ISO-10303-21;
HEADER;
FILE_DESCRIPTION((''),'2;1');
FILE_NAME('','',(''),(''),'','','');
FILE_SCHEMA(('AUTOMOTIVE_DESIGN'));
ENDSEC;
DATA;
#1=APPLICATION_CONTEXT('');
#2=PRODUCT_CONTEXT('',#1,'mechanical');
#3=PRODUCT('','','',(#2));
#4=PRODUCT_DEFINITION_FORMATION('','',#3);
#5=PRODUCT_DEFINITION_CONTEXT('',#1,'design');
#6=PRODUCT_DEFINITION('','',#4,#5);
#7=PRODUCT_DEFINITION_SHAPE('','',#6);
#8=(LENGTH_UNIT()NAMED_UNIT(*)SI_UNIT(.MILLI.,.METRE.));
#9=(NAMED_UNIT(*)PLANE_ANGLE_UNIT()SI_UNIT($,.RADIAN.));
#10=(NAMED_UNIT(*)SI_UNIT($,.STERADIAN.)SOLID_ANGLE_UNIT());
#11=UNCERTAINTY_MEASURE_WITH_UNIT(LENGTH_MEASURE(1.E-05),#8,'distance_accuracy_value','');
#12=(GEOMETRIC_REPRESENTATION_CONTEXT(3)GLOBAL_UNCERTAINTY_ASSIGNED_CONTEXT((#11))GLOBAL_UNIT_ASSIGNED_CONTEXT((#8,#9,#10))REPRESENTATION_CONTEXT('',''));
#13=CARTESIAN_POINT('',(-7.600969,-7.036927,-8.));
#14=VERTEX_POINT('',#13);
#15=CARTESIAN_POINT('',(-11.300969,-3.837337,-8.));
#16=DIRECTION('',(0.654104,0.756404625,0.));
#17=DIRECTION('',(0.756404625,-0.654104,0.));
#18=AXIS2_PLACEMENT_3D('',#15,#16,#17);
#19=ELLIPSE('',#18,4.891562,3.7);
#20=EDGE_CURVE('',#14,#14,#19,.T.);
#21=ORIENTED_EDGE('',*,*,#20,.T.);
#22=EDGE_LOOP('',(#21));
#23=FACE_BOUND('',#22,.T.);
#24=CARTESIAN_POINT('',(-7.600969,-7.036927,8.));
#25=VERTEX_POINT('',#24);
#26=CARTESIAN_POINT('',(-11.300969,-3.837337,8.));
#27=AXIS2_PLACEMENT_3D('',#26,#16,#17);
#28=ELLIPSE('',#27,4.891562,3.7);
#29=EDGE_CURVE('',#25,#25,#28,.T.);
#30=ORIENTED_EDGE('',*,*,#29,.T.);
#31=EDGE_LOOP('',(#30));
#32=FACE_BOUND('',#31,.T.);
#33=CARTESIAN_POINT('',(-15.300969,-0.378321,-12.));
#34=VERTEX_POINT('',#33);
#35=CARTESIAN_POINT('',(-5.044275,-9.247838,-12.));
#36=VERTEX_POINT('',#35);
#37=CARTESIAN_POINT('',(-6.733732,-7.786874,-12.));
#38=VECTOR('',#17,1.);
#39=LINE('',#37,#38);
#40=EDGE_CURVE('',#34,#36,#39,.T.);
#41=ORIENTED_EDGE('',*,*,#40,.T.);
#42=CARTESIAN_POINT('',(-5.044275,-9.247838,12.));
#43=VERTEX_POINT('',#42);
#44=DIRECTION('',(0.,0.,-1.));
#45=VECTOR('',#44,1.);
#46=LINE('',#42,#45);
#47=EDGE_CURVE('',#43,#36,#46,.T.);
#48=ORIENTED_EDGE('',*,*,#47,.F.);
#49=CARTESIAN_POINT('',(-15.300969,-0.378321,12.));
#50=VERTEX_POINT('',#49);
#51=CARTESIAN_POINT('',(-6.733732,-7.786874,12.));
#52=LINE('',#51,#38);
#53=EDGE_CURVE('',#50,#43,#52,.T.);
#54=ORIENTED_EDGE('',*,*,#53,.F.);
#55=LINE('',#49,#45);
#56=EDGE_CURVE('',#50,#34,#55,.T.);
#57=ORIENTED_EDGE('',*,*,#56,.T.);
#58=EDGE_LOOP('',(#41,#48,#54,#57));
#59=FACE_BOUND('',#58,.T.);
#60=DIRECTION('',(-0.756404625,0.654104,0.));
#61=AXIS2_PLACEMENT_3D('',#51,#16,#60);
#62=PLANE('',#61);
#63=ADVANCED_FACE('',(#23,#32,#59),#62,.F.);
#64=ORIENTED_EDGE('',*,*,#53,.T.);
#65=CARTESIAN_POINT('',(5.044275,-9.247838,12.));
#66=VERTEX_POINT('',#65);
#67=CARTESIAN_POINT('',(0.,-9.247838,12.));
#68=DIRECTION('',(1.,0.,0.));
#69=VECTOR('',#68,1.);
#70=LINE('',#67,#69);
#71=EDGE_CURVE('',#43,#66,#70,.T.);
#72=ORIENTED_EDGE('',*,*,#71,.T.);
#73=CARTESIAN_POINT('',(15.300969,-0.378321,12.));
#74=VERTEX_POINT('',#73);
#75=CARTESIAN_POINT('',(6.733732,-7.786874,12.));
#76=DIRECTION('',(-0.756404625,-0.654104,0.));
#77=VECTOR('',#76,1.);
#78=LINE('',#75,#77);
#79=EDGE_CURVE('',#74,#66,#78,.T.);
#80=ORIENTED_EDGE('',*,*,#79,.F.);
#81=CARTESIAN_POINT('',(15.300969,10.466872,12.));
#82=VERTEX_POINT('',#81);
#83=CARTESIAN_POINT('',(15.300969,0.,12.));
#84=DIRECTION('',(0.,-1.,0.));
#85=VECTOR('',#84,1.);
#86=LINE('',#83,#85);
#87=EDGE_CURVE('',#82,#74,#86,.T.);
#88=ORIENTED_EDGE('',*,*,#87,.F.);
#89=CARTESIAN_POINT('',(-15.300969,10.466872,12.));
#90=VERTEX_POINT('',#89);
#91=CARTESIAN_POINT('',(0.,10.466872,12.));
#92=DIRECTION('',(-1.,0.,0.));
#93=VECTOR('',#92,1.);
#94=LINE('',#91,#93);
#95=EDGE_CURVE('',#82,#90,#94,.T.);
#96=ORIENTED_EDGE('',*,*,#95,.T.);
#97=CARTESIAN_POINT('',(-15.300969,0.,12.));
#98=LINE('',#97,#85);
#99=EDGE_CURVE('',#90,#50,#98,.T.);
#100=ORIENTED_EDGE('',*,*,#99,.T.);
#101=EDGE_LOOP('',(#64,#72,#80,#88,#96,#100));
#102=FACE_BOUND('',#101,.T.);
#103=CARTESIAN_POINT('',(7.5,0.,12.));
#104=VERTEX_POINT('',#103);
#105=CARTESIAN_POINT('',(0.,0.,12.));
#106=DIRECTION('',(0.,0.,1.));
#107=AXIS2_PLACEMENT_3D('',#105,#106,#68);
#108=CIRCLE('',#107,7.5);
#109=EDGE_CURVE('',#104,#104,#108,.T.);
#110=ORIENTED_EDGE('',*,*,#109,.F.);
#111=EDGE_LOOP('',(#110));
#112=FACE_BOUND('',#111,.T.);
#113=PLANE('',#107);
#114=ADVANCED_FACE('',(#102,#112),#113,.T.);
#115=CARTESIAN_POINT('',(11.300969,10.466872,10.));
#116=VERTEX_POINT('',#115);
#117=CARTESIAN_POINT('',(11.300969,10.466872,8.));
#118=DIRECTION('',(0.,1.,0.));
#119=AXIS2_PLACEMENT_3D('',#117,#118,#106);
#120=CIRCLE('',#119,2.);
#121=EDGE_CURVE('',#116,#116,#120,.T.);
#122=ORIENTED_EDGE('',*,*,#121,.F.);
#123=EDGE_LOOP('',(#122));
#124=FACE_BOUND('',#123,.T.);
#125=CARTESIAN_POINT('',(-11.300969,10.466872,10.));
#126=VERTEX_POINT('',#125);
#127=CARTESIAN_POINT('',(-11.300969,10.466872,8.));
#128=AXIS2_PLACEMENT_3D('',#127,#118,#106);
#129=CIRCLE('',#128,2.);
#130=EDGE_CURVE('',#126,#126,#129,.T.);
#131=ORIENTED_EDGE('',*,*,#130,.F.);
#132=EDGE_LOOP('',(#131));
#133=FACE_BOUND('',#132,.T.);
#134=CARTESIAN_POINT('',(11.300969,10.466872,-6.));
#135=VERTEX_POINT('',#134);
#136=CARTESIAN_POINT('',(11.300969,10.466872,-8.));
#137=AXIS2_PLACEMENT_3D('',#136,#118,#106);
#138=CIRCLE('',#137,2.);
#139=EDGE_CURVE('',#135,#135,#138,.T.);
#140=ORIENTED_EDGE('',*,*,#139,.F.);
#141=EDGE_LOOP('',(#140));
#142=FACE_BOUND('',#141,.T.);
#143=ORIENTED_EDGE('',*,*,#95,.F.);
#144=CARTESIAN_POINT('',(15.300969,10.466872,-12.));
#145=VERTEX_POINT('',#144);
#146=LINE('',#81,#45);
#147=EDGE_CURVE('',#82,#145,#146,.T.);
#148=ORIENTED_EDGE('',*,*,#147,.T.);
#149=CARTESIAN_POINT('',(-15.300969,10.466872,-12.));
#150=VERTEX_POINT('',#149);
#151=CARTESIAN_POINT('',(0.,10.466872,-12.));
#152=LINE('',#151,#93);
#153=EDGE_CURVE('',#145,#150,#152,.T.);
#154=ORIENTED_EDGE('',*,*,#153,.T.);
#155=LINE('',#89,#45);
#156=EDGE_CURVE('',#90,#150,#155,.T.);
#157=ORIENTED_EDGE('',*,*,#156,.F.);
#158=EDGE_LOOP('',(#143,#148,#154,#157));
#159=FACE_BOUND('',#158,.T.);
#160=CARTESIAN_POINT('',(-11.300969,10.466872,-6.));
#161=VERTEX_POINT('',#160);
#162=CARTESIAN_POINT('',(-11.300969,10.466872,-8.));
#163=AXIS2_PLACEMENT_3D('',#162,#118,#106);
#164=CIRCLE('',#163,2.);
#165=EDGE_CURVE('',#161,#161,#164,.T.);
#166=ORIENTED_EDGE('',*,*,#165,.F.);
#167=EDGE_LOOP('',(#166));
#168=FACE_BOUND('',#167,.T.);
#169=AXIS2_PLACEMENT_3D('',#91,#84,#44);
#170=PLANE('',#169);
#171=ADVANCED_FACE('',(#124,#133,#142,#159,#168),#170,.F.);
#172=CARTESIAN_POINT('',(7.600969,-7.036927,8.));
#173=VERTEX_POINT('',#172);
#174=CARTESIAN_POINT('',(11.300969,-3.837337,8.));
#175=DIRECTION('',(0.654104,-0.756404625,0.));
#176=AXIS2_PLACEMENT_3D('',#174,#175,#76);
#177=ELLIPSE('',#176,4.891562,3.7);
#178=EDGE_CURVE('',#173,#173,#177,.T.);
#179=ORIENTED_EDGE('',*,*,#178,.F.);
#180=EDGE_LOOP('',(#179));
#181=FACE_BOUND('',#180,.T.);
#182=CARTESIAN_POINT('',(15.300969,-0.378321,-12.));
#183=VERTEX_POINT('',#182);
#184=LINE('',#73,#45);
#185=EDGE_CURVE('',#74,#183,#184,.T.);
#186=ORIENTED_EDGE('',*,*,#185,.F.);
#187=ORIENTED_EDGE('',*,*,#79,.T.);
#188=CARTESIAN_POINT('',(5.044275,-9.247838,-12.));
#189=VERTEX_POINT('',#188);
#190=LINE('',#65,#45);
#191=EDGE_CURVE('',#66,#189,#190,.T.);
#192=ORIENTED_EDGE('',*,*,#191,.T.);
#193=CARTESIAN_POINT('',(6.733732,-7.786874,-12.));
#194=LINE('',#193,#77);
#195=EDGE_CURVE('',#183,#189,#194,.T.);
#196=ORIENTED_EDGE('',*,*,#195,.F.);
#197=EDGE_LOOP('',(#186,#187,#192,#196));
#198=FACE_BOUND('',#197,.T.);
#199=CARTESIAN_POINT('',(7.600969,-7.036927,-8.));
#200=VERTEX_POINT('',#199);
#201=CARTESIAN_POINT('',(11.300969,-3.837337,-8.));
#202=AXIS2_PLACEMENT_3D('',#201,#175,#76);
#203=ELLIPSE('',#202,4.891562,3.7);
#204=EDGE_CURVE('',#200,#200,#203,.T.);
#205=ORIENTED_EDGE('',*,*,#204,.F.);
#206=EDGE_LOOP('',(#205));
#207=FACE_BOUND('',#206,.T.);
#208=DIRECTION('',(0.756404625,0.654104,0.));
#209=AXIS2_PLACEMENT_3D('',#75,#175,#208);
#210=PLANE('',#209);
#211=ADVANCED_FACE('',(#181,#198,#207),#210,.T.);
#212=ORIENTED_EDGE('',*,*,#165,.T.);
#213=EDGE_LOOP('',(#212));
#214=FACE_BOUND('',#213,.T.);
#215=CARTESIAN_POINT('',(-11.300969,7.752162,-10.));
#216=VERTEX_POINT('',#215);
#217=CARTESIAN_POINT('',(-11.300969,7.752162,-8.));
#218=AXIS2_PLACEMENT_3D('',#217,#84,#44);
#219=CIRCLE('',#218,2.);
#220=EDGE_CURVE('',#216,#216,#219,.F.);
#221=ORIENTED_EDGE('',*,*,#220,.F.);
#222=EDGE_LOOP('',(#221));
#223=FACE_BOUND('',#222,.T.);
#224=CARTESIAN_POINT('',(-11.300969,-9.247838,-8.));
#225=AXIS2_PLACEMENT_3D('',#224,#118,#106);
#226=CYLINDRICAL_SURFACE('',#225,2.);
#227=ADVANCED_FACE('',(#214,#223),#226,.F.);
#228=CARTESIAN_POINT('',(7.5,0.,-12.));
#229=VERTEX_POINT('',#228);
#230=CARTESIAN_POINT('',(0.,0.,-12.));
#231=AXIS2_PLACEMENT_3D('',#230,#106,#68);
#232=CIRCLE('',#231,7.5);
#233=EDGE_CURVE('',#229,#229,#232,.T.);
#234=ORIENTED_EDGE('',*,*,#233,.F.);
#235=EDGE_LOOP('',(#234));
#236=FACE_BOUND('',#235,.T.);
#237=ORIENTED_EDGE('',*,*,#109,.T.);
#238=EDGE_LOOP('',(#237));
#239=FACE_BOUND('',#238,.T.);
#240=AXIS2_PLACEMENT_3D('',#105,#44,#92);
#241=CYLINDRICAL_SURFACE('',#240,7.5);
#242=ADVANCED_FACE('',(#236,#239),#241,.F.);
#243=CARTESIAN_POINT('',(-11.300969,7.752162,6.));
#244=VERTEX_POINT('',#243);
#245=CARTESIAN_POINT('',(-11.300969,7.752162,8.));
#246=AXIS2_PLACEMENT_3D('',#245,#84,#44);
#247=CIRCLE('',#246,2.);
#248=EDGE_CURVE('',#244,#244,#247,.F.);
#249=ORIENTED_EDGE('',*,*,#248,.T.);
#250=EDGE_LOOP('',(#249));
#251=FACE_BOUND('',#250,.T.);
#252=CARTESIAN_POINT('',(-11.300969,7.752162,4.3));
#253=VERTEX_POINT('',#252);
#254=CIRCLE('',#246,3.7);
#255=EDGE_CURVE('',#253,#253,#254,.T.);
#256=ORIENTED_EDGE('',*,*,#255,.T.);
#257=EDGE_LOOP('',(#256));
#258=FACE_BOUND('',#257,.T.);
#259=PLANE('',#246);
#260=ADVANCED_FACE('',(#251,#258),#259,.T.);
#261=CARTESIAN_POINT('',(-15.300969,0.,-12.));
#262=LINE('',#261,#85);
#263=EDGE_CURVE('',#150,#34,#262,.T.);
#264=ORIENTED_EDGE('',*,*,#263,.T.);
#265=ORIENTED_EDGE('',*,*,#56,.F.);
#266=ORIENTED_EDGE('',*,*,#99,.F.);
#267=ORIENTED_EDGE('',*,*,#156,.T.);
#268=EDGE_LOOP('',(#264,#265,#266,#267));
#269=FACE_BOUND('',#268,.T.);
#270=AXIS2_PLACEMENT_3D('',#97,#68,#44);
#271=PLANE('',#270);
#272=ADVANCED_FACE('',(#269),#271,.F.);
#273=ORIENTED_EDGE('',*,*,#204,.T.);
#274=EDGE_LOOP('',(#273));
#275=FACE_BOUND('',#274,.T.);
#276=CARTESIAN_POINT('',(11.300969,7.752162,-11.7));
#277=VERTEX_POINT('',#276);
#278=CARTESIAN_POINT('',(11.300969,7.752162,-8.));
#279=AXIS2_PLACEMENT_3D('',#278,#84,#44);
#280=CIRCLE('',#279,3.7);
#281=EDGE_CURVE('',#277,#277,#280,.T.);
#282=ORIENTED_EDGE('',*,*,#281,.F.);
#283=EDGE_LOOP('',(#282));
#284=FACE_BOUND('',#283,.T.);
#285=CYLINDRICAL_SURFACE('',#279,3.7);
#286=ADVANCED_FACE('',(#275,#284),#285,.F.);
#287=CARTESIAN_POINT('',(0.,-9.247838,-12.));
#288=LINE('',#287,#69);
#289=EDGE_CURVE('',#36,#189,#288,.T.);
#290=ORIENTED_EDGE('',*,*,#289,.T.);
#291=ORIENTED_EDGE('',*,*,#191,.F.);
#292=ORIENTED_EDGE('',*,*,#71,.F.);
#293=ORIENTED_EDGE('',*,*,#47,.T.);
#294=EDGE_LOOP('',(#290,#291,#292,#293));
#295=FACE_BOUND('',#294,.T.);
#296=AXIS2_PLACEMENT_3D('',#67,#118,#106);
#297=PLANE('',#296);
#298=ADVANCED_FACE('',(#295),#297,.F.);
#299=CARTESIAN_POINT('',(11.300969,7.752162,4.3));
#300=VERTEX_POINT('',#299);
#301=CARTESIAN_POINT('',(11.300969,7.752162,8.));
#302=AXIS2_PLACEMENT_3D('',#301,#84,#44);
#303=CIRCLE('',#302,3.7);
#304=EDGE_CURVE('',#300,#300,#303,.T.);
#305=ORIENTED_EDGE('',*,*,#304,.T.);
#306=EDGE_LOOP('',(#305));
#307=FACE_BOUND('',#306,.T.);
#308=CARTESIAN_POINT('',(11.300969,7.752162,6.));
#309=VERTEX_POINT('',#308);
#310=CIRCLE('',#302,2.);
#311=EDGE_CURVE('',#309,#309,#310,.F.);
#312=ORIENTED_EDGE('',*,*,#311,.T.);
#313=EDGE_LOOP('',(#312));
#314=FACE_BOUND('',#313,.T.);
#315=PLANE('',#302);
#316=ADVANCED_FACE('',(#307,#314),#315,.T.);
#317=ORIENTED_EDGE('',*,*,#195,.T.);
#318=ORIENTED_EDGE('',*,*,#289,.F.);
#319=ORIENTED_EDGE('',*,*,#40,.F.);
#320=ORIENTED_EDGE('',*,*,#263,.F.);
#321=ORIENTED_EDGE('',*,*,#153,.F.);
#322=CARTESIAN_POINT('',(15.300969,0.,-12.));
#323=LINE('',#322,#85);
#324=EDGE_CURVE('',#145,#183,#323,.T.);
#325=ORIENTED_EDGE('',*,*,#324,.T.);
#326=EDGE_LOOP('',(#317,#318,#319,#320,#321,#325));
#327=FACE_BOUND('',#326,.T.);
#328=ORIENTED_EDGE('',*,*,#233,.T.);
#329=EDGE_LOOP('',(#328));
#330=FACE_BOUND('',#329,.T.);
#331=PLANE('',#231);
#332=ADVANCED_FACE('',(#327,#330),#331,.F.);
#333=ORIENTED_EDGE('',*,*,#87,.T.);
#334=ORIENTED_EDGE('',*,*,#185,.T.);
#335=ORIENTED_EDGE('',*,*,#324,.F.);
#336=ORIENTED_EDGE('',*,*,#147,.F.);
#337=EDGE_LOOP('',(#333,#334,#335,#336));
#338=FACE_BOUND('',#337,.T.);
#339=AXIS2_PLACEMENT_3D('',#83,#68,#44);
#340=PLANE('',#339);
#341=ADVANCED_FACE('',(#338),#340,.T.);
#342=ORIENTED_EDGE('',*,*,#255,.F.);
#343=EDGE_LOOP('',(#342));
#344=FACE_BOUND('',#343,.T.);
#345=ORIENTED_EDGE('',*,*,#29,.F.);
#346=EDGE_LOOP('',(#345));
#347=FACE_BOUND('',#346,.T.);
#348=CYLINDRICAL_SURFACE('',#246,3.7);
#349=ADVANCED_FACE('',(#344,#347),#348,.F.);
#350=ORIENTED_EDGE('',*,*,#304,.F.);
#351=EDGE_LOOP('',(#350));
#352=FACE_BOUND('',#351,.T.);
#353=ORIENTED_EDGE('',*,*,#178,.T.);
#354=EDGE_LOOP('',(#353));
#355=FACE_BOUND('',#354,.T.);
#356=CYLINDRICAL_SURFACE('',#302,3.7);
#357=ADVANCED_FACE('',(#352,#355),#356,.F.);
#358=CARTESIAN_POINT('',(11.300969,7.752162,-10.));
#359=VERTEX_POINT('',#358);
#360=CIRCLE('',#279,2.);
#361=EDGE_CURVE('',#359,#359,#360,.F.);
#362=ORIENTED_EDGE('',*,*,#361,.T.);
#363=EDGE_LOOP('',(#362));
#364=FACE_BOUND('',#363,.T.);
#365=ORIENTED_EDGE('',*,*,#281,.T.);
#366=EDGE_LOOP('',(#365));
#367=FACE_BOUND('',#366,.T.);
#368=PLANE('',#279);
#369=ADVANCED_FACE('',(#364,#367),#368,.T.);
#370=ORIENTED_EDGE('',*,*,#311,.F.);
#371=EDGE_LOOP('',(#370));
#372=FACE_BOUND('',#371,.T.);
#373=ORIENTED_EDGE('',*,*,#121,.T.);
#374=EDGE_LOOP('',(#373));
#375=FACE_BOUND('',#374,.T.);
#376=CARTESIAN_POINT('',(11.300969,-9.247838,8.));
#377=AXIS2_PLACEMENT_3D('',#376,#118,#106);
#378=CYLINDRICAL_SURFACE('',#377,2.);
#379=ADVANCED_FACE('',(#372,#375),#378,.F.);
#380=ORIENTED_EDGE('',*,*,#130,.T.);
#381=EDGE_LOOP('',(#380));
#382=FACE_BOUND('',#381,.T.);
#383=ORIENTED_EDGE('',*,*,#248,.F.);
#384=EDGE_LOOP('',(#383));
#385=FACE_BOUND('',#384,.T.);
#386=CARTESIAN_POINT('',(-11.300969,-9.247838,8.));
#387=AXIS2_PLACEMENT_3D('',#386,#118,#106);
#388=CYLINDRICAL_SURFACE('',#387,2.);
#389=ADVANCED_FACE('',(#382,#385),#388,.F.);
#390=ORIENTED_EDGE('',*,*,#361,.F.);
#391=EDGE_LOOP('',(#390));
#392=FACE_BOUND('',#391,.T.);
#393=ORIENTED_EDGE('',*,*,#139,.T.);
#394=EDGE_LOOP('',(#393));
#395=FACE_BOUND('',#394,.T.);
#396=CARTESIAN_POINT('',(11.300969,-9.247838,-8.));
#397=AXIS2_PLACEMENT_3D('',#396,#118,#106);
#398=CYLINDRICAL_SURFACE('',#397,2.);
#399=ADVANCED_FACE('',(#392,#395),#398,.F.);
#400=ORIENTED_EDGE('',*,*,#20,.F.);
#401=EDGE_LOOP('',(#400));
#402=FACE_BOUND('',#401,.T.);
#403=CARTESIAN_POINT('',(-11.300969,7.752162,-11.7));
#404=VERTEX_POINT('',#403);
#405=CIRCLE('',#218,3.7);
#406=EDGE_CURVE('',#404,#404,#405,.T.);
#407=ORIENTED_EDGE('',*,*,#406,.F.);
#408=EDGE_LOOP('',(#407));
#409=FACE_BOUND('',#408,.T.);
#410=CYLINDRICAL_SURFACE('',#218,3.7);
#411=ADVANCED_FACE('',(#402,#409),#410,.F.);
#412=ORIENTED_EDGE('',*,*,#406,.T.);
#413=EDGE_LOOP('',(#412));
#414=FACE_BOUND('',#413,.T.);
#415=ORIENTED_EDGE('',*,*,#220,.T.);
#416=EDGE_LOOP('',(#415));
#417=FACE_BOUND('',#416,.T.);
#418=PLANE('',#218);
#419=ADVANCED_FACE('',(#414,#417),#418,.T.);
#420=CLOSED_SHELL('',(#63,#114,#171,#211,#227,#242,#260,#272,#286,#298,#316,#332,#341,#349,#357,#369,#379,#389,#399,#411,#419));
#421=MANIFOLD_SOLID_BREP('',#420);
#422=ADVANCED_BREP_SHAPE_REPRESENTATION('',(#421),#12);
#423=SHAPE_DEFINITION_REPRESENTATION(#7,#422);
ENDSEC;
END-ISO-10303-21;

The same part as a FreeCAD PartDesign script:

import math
import FreeCAD as App
import Part
import Sketcher


def add_polygon(sketch, points):
    """Adds a closed chain of lines whose ends are joined by coincident constraints."""
    first, n = sketch.GeometryCount, len(points)
    for a, b in zip(points, points[1:] + points[:1]):
        sketch.addGeometry(Part.LineSegment(App.Vector(*a, 0), App.Vector(*b, 0)), False)
    for i in range(n):
        sketch.addConstraint(Sketcher.Constraint("Coincident", first + i, 2, first + (i + 1) % n, 1))

doc = App.newDocument("Part")
body = doc.addObject("PartDesign::Body", "Body")

# Sketch on XY plane
sketch1 = body.newObject("Sketcher::SketchObject", "Sketch")
sketch1.AttachmentSupport = (doc.getObject("XY_Plane"), [""])
sketch1.MapMode = "FlatFace"
add_polygon(sketch1, [(15.300969, -0.378321), (15.300969, 10.466872), (-15.300969, 10.466872), (-15.300969, -0.378321), (-5.044275, -9.247838), (5.044275, -9.247838)])  # lines 0-5
sketch1.addGeometry(Part.ArcOfCircle(Part.Circle(App.Vector(0, 0, 0), App.Vector(0, 0, 1), 7.5), math.radians(0), math.radians(90)), False)  # 6
sketch1.addGeometry(Part.ArcOfCircle(Part.Circle(App.Vector(0, 0, 0), App.Vector(0, 0, 1), 7.5), math.radians(-90), math.radians(0)), False)  # 7
sketch1.addGeometry(Part.ArcOfCircle(Part.Circle(App.Vector(0, 0, 0), App.Vector(0, 0, 1), 7.5), math.radians(90), math.radians(270)), False)  # 8
sketch1.addConstraint(Sketcher.Constraint("Tangent", 6, 1, 7, 2))
sketch1.addConstraint(Sketcher.Constraint("Tangent", 7, 1, 8, 2))
sketch1.addConstraint(Sketcher.Constraint("Tangent", 8, 1, 6, 2))
sketch1.addConstraint(Sketcher.Constraint("Vertical", 0))
sketch1.addConstraint(Sketcher.Constraint("Horizontal", 1))
sketch1.addConstraint(Sketcher.Constraint("Vertical", 2))
sketch1.addConstraint(Sketcher.Constraint("Horizontal", 4))
sketch1.addConstraint(Sketcher.Constraint("Coincident", 6, 3, -1, 1))
sketch1.addConstraint(Sketcher.Constraint("Symmetric", 2, 2, 5, 2, -2))
sketch1.addConstraint(Sketcher.Constraint("PointOnObject", 6, 1, -1))
sketch1.addConstraint(Sketcher.Constraint("PointOnObject", 7, 1, -2))
sketch1.addConstraint(Sketcher.Constraint("PointOnObject", 8, 1, -2))
sketch1.addConstraint(Sketcher.Constraint("Equal", 3, 5))
sketch1.addConstraint(Sketcher.Constraint("Radius", 6, 7.5))
sketch1.addConstraint(Sketcher.Constraint("DistanceX", 4, 1, 4, 2, 10.088551))
sketch1.addConstraint(Sketcher.Constraint("DistanceX", 1, 2, 1, 1, 30.601938))
sketch1.addConstraint(Sketcher.Constraint("DistanceY", 0, 1, 0, 2, 10.845192))
sketch1.addConstraint(Sketcher.Constraint("DistanceY", -1, 1, 0, 2, 10.466872))
sketch1.addConstraint(Sketcher.Constraint("DistanceY", 3, 2, -1, 1, 9.247838))
pad1 = body.newObject("PartDesign::Pad", "Pad")
pad1.Profile = sketch1
pad1.Length = 24
pad1.Midplane = True

# Sketch on XZ plane
sketch2 = body.newObject("Sketcher::SketchObject", "Sketch001")
sketch2.AttachmentSupport = (doc.getObject("XZ_Plane"), [""])
sketch2.MapMode = "FlatFace"
sketch2.AttachmentOffset = App.Placement(App.Vector(0, 0, -10.466872), App.Rotation())
sketch2.addGeometry(Part.Circle(App.Vector(-11.300969, -8, 0), App.Vector(0, 0, 1), 2), False)
sketch2.addGeometry(Part.Circle(App.Vector(-11.300969, 8, 0), App.Vector(0, 0, 1), 2), False)
sketch2.addGeometry(Part.Circle(App.Vector(11.300969, 8, 0), App.Vector(0, 0, 1), 2), False)
sketch2.addGeometry(Part.Circle(App.Vector(11.300969, -8, 0), App.Vector(0, 0, 1), 2), False)
sketch2.addConstraint(Sketcher.Constraint("Equal", 0, 1))
sketch2.addConstraint(Sketcher.Constraint("Equal", 1, 2))
sketch2.addConstraint(Sketcher.Constraint("Equal", 2, 3))
sketch2.addConstraint(Sketcher.Constraint("Symmetric", 0, 3, 2, 3, -1, 1))
sketch2.addConstraint(Sketcher.Constraint("Symmetric", 1, 3, 3, 3, -1, 1))
sketch2.addConstraint(Sketcher.Constraint("Symmetric", 1, 3, 2, 3, -2))
sketch2.addConstraint(Sketcher.Constraint("Diameter", 0, 4.0))
sketch2.addConstraint(Sketcher.Constraint("DistanceY", 0, 3, -1, 1, 8.0))
sketch2.addConstraint(Sketcher.Constraint("DistanceX", 0, 3, -1, 1, 11.300969))
pocket1 = body.newObject("PartDesign::Pocket", "Pocket")
pocket1.Profile = sketch2
pocket1.Type = "ThroughAll"
pocket1.Reversed = True

# Sketch on XZ plane
sketch3 = body.newObject("Sketcher::SketchObject", "Sketch002")
sketch3.AttachmentSupport = (doc.getObject("XZ_Plane"), [""])
sketch3.MapMode = "FlatFace"
sketch3.AttachmentOffset = App.Placement(App.Vector(0, 0, 9.247838), App.Rotation())
sketch3.addGeometry(Part.Circle(App.Vector(-11.300969, 8, 0), App.Vector(0, 0, 1), 3.7), False)
sketch3.addGeometry(Part.Circle(App.Vector(-11.300969, -8, 0), App.Vector(0, 0, 1), 3.7), False)
sketch3.addGeometry(Part.Circle(App.Vector(11.300969, 8, 0), App.Vector(0, 0, 1), 3.7), False)
sketch3.addGeometry(Part.Circle(App.Vector(11.300969, -8, 0), App.Vector(0, 0, 1), 3.7), False)
sketch3.addConstraint(Sketcher.Constraint("Equal", 0, 1))
sketch3.addConstraint(Sketcher.Constraint("Equal", 1, 2))
sketch3.addConstraint(Sketcher.Constraint("Equal", 2, 3))
sketch3.addConstraint(Sketcher.Constraint("Symmetric", 1, 3, 2, 3, -1, 1))
sketch3.addConstraint(Sketcher.Constraint("Symmetric", 0, 3, 3, 3, -1, 1))
sketch3.addConstraint(Sketcher.Constraint("Symmetric", 0, 3, 2, 3, -2))
sketch3.addConstraint(Sketcher.Constraint("Diameter", 0, 7.4))
sketch3.addConstraint(Sketcher.Constraint("DistanceY", -1, 1, 0, 3, 8.0))
sketch3.addConstraint(Sketcher.Constraint("DistanceX", 0, 3, -1, 1, 11.300969))
pocket2 = body.newObject("PartDesign::Pocket", "Pocket001")
pocket2.Profile = sketch3
pocket2.Length = 17

doc.recompute()
